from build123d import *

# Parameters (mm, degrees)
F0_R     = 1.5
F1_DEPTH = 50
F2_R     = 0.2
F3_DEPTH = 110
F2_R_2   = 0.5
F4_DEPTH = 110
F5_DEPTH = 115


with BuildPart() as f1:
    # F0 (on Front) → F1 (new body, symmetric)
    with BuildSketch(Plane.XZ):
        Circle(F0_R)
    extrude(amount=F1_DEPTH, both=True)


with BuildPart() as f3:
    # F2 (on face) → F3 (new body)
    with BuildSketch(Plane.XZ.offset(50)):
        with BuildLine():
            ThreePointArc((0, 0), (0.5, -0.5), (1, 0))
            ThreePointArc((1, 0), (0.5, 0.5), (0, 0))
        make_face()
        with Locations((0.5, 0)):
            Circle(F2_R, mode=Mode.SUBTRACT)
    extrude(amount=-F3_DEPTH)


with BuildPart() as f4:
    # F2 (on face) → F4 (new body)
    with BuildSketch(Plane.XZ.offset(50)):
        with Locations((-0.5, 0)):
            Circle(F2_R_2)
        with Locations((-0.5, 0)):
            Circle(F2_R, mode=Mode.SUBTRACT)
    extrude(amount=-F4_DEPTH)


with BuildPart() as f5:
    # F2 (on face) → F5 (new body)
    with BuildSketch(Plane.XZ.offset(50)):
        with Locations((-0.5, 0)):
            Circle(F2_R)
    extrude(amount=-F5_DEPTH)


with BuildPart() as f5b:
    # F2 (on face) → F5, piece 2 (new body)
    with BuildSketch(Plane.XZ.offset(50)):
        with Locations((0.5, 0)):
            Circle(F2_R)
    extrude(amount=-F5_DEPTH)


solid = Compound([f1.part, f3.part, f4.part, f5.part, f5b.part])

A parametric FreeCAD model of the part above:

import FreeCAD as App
import Part
import Sketcher

doc = App.newDocument("Part")
body = doc.addObject("PartDesign::Body", "Body")

# Sketch on XZ plane
sketch1 = doc.addObject("Sketcher::SketchObject", "Sketch")
body.addObject(sketch1)
sketch1.AttachmentSupport = (doc.XZ_Plane, [""])
sketch1.MapMode = "FlatFace"
sketch1.addGeometry(Part.Circle(App.Vector(0, 0, 0), App.Vector(0, 0, 1), 1.5), False)
sketch1.addConstraint(Sketcher.Constraint("Coincident", 0, 3, -1, 1))
sketch1.addConstraint(Sketcher.Constraint("Diameter", 0, 3.0))
pad1 = doc.addObject("PartDesign::Pad", "Pad")
body.addObject(pad1)
pad1.Profile = sketch1
pad1.Length = 100
pad1.Midplane = True
body2 = doc.addObject("PartDesign::Body", "Body001")

# Sketch on XZ plane
sketch2 = doc.addObject("Sketcher::SketchObject", "Sketch001")
body2.addObject(sketch2)
sketch2.AttachmentSupport = (doc.getObject("XZ_Plane001"), [""])
sketch2.MapMode = "FlatFace"
sketch2.AttachmentOffset = App.Placement(App.Vector(0, 0, 50), App.Rotation())
sketch2.addGeometry(Part.Circle(App.Vector(0.5, 0, 0), App.Vector(0, 0, 1), 0.5), False)
sketch2.addGeometry(Part.Circle(App.Vector(0.5, 0, 0), App.Vector(0, 0, 1), 0.2), False)
sketch2.addConstraint(Sketcher.Constraint("Coincident", 1, 3, 0, 3))
sketch2.addConstraint(Sketcher.Constraint("PointOnObject", 0, 3, -1))
sketch2.addConstraint(Sketcher.Constraint("Diameter", 0, 1.0))
sketch2.addConstraint(Sketcher.Constraint("Diameter", 1, 0.4))
sketch2.addConstraint(Sketcher.Constraint("DistanceX", -1, 1, 0, 3, 0.5))
pad2 = doc.addObject("PartDesign::Pad", "Pad001")
body2.addObject(pad2)
pad2.Profile = sketch2
pad2.Length = 110
pad2.Reversed = True
body3 = doc.addObject("PartDesign::Body", "Body002")

# Sketch on XZ plane
sketch3 = doc.addObject("Sketcher::SketchObject", "Sketch002")
body3.addObject(sketch3)
sketch3.AttachmentSupport = (doc.getObject("XZ_Plane002"), [""])
sketch3.MapMode = "FlatFace"
sketch3.AttachmentOffset = App.Placement(App.Vector(0, 0, 50), App.Rotation())
sketch3.addGeometry(Part.Circle(App.Vector(-0.5, 0, 0), App.Vector(0, 0, 1), 0.5), False)
sketch3.addGeometry(Part.Circle(App.Vector(-0.5, 0, 0), App.Vector(0, 0, 1), 0.2), False)
sketch3.addConstraint(Sketcher.Constraint("Coincident", 1, 3, 0, 3))
sketch3.addConstraint(Sketcher.Constraint("PointOnObject", 0, 3, -1))
sketch3.addConstraint(Sketcher.Constraint("Diameter", 0, 1.0))
sketch3.addConstraint(Sketcher.Constraint("Diameter", 1, 0.4))
sketch3.addConstraint(Sketcher.Constraint("DistanceX", 0, 3, -1, 1, 0.5))
pad3 = doc.addObject("PartDesign::Pad", "Pad002")
body3.addObject(pad3)
pad3.Profile = sketch3
pad3.Length = 110
pad3.Reversed = True
body4 = doc.addObject("PartDesign::Body", "Body003")

# Sketch on XZ plane
sketch4 = doc.addObject("Sketcher::SketchObject", "Sketch003")
body4.addObject(sketch4)
sketch4.AttachmentSupport = (doc.getObject("XZ_Plane003"), [""])
sketch4.MapMode = "FlatFace"
sketch4.AttachmentOffset = App.Placement(App.Vector(0, 0, 50), App.Rotation())
sketch4.addGeometry(Part.Circle(App.Vector(-0.5, 0, 0), App.Vector(0, 0, 1), 0.2), False)
sketch4.addConstraint(Sketcher.Constraint("PointOnObject", 0, 3, -1))
sketch4.addConstraint(Sketcher.Constraint("Diameter", 0, 0.4))
sketch4.addConstraint(Sketcher.Constraint("DistanceX", 0, 3, -1, 1, 0.5))
pad4 = doc.addObject("PartDesign::Pad", "Pad003")
body4.addObject(pad4)
pad4.Profile = sketch4
pad4.Length = 115
pad4.Reversed = True
body5 = doc.addObject("PartDesign::Body", "Body004")

# Sketch on XZ plane
sketch5 = doc.addObject("Sketcher::SketchObject", "Sketch004")
body5.addObject(sketch5)
sketch5.AttachmentSupport = (doc.getObject("XZ_Plane004"), [""])
sketch5.MapMode = "FlatFace"
sketch5.AttachmentOffset = App.Placement(App.Vector(0, 0, 50), App.Rotation())
sketch5.addGeometry(Part.Circle(App.Vector(0.5, 0, 0), App.Vector(0, 0, 1), 0.2), False)
sketch5.addConstraint(Sketcher.Constraint("PointOnObject", 0, 3, -1))
sketch5.addConstraint(Sketcher.Constraint("Diameter", 0, 0.4))
sketch5.addConstraint(Sketcher.Constraint("DistanceX", -1, 1, 0, 3, 0.5))
pad5 = doc.addObject("PartDesign::Pad", "Pad004")
body5.addObject(pad5)
pad5.Profile = sketch5
pad5.Length = 115
pad5.Reversed = True

doc.recompute()
